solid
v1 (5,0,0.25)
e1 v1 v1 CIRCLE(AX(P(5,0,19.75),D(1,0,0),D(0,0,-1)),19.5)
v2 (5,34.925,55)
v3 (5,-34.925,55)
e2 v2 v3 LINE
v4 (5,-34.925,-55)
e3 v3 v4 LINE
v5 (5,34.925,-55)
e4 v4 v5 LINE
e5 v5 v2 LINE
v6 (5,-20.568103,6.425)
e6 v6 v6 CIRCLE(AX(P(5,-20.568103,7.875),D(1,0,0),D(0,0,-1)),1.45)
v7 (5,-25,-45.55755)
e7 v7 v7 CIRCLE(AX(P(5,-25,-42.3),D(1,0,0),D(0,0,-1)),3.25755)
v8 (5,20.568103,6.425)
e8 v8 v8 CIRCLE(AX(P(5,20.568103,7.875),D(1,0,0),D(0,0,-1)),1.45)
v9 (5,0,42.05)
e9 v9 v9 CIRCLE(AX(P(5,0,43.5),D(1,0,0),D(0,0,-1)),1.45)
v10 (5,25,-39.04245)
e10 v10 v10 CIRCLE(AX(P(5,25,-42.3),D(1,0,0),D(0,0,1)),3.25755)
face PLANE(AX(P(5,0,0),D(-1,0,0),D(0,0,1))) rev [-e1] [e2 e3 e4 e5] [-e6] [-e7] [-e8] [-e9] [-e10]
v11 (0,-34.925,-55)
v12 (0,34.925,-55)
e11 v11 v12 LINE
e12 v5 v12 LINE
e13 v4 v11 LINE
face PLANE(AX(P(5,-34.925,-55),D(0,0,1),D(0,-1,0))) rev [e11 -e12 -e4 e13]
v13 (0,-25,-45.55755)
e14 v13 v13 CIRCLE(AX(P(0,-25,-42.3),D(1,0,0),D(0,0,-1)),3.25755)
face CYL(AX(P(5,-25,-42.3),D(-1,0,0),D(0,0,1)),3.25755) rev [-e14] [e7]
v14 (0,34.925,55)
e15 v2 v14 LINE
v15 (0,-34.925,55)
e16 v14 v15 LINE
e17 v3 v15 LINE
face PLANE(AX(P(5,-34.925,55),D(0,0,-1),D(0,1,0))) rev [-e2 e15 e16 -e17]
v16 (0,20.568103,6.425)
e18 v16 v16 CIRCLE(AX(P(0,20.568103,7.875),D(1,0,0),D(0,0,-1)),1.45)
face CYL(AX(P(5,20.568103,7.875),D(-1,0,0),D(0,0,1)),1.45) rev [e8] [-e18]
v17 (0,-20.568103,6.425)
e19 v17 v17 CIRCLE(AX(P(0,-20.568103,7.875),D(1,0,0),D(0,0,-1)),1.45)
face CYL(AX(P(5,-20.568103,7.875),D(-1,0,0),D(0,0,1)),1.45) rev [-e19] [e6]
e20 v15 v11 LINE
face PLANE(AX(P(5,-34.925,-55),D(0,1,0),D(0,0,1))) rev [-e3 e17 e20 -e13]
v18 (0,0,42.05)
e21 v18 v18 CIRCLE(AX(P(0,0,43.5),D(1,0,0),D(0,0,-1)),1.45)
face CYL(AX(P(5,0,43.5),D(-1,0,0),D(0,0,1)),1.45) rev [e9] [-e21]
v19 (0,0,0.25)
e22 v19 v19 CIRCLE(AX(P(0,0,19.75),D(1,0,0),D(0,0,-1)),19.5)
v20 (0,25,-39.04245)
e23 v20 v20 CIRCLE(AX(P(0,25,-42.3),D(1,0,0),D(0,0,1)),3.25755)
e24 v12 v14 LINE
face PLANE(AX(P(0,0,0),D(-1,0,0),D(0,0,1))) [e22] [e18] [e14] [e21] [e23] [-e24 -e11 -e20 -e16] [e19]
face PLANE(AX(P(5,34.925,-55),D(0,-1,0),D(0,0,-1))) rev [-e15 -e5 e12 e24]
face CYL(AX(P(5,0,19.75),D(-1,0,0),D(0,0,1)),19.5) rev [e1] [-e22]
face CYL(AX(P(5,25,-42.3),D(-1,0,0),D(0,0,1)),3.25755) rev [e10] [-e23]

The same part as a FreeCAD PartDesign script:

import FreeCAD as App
import Part
import Sketcher

V = App.Vector
Q = App.Units.Quantity


def add_polygon(sketch, points):
    """Adds a closed chain of lines whose ends are joined by coincident constraints."""
    first, n = sketch.GeometryCount, len(points)
    for a, b in zip(points, points[1:] + points[:1]):
        sketch.addGeometry(Part.LineSegment(App.Vector(*a, 0), App.Vector(*b, 0)), False)
    for i in range(n):
        sketch.addConstraint(Sketcher.Constraint("Coincident", first + i, 2, first + (i + 1) % n, 1))

doc = App.newDocument("Part")
params = doc.addObject("Spreadsheet::Sheet", "Params")
for row, (alias, value) in enumerate([
    ("sketch1_diameter", "39 mm"),
    ("sketch1_diameter2", "2.9 mm"),
    ("sketch1_height", "110 mm"),
    ("sketch1_width", "69.85 mm"),
    ("pad1_length", "5 mm"),
], start=1):
    params.set(f"A{row}", alias)
    params.set(f"B{row}", "=" + value)
    params.setAlias(f"B{row}", alias)

body = doc.addObject("PartDesign::Body", "Body")

# Sketch on YZ plane
sketch1 = doc.addObject("Sketcher::SketchObject", "Sketch")
body.addObject(sketch1)
sketch1.AttachmentSupport = (doc.YZ_Plane, [""])
sketch1.MapMode = "FlatFace"
add_polygon(sketch1, [(-34.9, 55), (-34.9, -55), (34.9, -55), (34.9, 55)])  # lines 0-3
sketch1.addGeometry(Part.Circle(V(-25, -42.3, 0), V(0, 0, 1), 3.3), False)  # 4
sketch1.addGeometry(Part.Circle(V(25, -42.3, 0), V(0, 0, 1), 3.3), False)  # 5
sketch1.addGeometry(Part.Circle(V(-20.6, 7.9, 0), V(0, 0, 1), 1.4), False)  # 6
sketch1.addGeometry(Part.Circle(V(0, 19.8, 0), V(0, 0, 1), 19.5), False)  # 7
sketch1.addGeometry(Part.Circle(V(20.6, 7.9, 0), V(0, 0, 1), 1.4), False)  # 8
sketch1.addGeometry(Part.Circle(V(0, 43.5, 0), V(0, 0, 1), 1.4), False)  # 9
sketch1.addConstraint([
    Sketcher.Constraint("Vertical", 0),
    Sketcher.Constraint("Horizontal", 1),
    Sketcher.Constraint("Vertical", 2),
    Sketcher.Constraint("Horizontal", 3),
    Sketcher.Constraint("Equal", 4, 5),
    Sketcher.Constraint("Equal", 6, 8),
    Sketcher.Constraint("Equal", 8, 9),
    Sketcher.Constraint("Symmetric", 0, 2, 2, 2, -1, 1),
    Sketcher.Constraint("Symmetric", 4, 3, 5, 3, -2),
    Sketcher.Constraint("Symmetric", 6, 3, 8, 3, -2),
    Sketcher.Constraint("PointOnObject", 7, 3, -2),
    Sketcher.Constraint("PointOnObject", 9, 3, -2),
    Sketcher.Constraint("Diameter", 7, Q("39 mm")),
    Sketcher.Constraint("Diameter", 6, Q("2.9 mm")),
    Sketcher.Constraint("DistanceY", 0, 2, 0, 1, Q("110 mm")),
    Sketcher.Constraint("DistanceX", 4, 3, -1, 1, Q("25 mm")),
    Sketcher.Constraint("Diameter", 4, Q("6.5151 mm")),
    Sketcher.Constraint("DistanceX", 1, 1, 1, 2, Q("69.85 mm")),
    Sketcher.Constraint("DistanceY", 4, 3, -1, 1, Q("42.3 mm")),
    Sketcher.Constraint("DistanceY", -1, 1, 9, 3, Q("43.5 mm")),
    Sketcher.Constraint("DistanceY", -1, 1, 7, 3, Q("19.75 mm")),
    Sketcher.Constraint("DistanceY", -1, 1, 6, 3, Q("7.875 mm")),
    Sketcher.Constraint("DistanceX", 6, 3, -1, 1, Q("20.568103 mm")),
])
sketch1.setExpression("Constraints[16]", "Params.sketch1_diameter")
sketch1.setExpression("Constraints[17]", "Params.sketch1_diameter2")
sketch1.setExpression("Constraints[18]", "Params.sketch1_height")
sketch1.setExpression("Constraints[21]", "Params.sketch1_width")
pad1 = doc.addObject("PartDesign::Pad", "Pad")
body.addObject(pad1)
pad1.Profile = sketch1
pad1.setExpression("Length", "Params.pad1_length")

doc.recompute()
